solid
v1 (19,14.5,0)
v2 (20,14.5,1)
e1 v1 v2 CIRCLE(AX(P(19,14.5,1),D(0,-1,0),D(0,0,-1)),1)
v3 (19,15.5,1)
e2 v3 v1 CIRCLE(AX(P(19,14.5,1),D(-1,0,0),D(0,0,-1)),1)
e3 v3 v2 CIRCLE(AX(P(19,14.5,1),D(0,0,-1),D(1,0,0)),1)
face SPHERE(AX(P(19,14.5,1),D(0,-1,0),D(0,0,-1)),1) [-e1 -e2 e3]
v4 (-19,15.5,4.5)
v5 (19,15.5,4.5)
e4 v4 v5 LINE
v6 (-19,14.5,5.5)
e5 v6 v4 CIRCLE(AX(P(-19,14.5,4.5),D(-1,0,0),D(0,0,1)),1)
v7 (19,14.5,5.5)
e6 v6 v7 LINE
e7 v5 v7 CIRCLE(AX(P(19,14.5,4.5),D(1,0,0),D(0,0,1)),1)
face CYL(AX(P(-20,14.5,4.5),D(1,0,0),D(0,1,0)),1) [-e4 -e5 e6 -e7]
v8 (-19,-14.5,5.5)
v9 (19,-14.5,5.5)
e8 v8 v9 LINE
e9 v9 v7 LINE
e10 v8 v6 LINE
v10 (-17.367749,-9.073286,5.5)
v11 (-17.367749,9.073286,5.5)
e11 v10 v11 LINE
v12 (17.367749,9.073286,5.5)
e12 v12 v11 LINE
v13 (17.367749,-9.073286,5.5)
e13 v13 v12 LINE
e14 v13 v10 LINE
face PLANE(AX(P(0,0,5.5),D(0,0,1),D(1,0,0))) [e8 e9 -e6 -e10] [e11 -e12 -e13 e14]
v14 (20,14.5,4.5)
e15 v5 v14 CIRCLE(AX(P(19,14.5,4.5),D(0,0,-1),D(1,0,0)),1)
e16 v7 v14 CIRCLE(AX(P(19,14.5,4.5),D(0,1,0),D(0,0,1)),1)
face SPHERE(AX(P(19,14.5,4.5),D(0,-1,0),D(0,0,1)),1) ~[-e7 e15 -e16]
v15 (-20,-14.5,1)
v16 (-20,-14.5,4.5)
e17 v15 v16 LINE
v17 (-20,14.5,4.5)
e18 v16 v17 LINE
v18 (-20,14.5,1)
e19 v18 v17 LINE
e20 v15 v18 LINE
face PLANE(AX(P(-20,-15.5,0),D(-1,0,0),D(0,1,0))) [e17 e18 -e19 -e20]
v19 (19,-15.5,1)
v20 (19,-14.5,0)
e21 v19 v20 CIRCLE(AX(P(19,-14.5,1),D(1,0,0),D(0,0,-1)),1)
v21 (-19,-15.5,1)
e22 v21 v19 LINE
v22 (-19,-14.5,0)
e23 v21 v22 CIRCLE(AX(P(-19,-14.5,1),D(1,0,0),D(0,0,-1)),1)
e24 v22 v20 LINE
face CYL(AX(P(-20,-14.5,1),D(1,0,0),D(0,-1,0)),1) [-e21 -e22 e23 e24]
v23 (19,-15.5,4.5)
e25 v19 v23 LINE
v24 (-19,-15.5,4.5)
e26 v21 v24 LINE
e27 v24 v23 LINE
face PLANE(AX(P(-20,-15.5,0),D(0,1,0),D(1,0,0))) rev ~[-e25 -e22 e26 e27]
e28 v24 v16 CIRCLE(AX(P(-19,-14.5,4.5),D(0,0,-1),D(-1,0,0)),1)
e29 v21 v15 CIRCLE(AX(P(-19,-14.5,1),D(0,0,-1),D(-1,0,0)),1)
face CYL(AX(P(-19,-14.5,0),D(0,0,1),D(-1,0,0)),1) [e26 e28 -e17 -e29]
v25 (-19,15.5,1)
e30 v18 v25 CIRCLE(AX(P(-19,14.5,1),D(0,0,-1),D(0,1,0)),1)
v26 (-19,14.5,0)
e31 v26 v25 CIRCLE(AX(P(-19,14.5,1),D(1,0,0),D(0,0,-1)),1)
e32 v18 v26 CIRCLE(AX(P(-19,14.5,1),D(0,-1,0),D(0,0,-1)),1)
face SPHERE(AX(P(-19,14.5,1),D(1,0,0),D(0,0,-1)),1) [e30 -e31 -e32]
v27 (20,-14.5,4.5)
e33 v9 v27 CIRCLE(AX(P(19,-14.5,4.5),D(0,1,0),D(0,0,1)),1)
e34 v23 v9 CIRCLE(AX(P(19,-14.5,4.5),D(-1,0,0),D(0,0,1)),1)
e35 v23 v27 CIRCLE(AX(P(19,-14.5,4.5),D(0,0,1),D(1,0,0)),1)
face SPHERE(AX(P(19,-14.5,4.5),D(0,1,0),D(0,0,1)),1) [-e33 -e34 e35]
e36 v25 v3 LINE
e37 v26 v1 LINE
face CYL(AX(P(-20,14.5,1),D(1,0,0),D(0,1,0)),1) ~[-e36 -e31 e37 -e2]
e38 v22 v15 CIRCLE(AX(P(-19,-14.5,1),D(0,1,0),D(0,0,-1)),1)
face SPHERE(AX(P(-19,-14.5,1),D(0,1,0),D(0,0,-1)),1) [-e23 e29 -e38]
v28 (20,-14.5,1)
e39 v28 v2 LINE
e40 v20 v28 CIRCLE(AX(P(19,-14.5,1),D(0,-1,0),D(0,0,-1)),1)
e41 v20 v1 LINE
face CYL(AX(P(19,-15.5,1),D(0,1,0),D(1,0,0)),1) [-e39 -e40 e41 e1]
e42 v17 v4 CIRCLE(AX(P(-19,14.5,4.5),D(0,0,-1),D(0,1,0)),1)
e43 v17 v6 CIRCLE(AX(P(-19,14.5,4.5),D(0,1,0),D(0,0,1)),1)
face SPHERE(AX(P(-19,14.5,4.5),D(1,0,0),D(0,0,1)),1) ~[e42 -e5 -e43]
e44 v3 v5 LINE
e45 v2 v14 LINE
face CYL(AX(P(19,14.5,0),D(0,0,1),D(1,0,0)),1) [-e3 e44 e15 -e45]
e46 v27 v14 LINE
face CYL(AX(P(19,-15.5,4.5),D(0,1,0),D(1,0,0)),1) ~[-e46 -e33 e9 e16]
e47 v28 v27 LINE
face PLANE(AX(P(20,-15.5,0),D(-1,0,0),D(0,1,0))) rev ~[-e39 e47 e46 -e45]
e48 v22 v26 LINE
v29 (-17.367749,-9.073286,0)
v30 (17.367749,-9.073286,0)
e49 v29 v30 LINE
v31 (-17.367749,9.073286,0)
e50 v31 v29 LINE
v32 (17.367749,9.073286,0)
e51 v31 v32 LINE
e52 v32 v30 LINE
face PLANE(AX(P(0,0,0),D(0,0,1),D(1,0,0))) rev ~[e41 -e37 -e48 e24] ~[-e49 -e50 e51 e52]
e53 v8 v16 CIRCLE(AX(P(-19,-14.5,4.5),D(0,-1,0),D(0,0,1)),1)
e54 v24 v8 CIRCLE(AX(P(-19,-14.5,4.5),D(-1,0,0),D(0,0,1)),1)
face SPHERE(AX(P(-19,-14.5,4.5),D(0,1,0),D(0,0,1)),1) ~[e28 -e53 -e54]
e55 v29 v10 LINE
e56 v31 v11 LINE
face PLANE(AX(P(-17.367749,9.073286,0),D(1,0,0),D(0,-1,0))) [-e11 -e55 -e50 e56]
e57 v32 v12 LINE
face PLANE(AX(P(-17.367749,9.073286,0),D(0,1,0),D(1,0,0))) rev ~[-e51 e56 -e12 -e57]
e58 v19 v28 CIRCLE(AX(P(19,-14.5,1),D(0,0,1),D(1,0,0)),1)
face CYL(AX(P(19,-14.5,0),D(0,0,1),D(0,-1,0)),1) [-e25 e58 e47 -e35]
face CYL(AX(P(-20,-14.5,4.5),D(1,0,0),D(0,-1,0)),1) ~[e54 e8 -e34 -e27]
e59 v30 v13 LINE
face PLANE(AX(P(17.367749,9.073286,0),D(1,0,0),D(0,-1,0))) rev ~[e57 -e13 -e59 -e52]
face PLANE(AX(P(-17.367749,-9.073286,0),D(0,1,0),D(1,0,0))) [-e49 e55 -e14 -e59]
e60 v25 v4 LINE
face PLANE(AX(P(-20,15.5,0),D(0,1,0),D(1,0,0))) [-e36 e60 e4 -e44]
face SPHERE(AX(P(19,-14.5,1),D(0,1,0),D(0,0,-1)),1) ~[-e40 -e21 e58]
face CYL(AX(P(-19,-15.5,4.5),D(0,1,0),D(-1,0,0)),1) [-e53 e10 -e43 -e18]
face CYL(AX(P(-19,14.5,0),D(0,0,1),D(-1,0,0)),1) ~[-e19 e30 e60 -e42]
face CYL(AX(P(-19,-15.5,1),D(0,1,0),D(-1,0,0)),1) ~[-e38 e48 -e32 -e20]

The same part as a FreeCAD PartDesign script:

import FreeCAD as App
import Part
import Sketcher
from FreeCAD import Vector

doc = App.newDocument("Part")
body = doc.addObject("PartDesign::Body", "Body")

# Sketch on XY plane
sketch1 = doc.addObject("Sketcher::SketchObject", "Sketch")
body.addObject(sketch1)
sketch1.AttachmentSupport = (doc.XY_Plane, [""])
sketch1.MapMode = "FlatFace"
sketch1.addGeometry([
    Part.LineSegment(Vector(-20, 16, 0), Vector(-20, -16, 0)),
    Part.LineSegment(Vector(-20, -16, 0), Vector(20, -16, 0)),
    Part.LineSegment(Vector(20, -16, 0), Vector(20, 16, 0)),
    Part.LineSegment(Vector(20, 16, 0), Vector(-20, 16, 0)),
], False)
sketch1.addConstraint([
    Sketcher.Constraint("Coincident", 0, 2, 1, 1),
    Sketcher.Constraint("Coincident", 1, 2, 2, 1),
    Sketcher.Constraint("Coincident", 2, 2, 3, 1),
    Sketcher.Constraint("Coincident", 3, 2, 0, 1),
    Sketcher.Constraint("Vertical", 0),
    Sketcher.Constraint("Horizontal", 1),
    Sketcher.Constraint("Vertical", 2),
    Sketcher.Constraint("Horizontal", 3),
    Sketcher.Constraint("Symmetric", 0, 2, 2, 2, -1, 1),
    Sketcher.Constraint("DistanceX", 1, 1, 1, 2, 40.0),
    Sketcher.Constraint("DistanceY", 0, 2, 0, 1, 31.0),
])
pad1 = doc.addObject("PartDesign::Pad", "Pad")
body.addObject(pad1)
pad1.Profile = sketch1
pad1.Length = 5.5
doc.recompute()

fillet = doc.addObject("PartDesign::Fillet", "Fillet")
body.addObject(fillet)
fillet.Base = (pad1, ["Edge1"])
fillet.UseAllEdges = True
fillet.Radius = 1

# Sketch on XY plane
sketch2 = doc.addObject("Sketcher::SketchObject", "Sketch001")
body.addObject(sketch2)
sketch2.AttachmentSupport = (doc.XY_Plane, [""])
sketch2.MapMode = "FlatFace"
sketch2.addGeometry([
    Part.LineSegment(Vector(-17, -9, 0), Vector(-17, 9, 0)),
    Part.LineSegment(Vector(-17, 9, 0), Vector(17, 9, 0)),
    Part.LineSegment(Vector(17, 9, 0), Vector(17, -9, 0)),
    Part.LineSegment(Vector(17, -9, 0), Vector(-17, -9, 0)),
], False)
sketch2.addConstraint([
    Sketcher.Constraint("Coincident", 0, 2, 1, 1),
    Sketcher.Constraint("Coincident", 1, 2, 2, 1),
    Sketcher.Constraint("Coincident", 2, 2, 3, 1),
    Sketcher.Constraint("Coincident", 3, 2, 0, 1),
    Sketcher.Constraint("Vertical", 0),
    Sketcher.Constraint("Horizontal", 1),
    Sketcher.Constraint("Vertical", 2),
    Sketcher.Constraint("Horizontal", 3),
    Sketcher.Constraint("Symmetric", 0, 2, 2, 2, -1, 1),
    Sketcher.Constraint("DistanceY", 0, 1, 0, 2, 18.146572),
    Sketcher.Constraint("DistanceX", 1, 1, 1, 2, 34.735498),
])
pocket1 = doc.addObject("PartDesign::Pocket", "Pocket")
body.addObject(pocket1)
pocket1.Profile = sketch2
pocket1.Length = 25
pocket1.Reversed = True

doc.recompute()
